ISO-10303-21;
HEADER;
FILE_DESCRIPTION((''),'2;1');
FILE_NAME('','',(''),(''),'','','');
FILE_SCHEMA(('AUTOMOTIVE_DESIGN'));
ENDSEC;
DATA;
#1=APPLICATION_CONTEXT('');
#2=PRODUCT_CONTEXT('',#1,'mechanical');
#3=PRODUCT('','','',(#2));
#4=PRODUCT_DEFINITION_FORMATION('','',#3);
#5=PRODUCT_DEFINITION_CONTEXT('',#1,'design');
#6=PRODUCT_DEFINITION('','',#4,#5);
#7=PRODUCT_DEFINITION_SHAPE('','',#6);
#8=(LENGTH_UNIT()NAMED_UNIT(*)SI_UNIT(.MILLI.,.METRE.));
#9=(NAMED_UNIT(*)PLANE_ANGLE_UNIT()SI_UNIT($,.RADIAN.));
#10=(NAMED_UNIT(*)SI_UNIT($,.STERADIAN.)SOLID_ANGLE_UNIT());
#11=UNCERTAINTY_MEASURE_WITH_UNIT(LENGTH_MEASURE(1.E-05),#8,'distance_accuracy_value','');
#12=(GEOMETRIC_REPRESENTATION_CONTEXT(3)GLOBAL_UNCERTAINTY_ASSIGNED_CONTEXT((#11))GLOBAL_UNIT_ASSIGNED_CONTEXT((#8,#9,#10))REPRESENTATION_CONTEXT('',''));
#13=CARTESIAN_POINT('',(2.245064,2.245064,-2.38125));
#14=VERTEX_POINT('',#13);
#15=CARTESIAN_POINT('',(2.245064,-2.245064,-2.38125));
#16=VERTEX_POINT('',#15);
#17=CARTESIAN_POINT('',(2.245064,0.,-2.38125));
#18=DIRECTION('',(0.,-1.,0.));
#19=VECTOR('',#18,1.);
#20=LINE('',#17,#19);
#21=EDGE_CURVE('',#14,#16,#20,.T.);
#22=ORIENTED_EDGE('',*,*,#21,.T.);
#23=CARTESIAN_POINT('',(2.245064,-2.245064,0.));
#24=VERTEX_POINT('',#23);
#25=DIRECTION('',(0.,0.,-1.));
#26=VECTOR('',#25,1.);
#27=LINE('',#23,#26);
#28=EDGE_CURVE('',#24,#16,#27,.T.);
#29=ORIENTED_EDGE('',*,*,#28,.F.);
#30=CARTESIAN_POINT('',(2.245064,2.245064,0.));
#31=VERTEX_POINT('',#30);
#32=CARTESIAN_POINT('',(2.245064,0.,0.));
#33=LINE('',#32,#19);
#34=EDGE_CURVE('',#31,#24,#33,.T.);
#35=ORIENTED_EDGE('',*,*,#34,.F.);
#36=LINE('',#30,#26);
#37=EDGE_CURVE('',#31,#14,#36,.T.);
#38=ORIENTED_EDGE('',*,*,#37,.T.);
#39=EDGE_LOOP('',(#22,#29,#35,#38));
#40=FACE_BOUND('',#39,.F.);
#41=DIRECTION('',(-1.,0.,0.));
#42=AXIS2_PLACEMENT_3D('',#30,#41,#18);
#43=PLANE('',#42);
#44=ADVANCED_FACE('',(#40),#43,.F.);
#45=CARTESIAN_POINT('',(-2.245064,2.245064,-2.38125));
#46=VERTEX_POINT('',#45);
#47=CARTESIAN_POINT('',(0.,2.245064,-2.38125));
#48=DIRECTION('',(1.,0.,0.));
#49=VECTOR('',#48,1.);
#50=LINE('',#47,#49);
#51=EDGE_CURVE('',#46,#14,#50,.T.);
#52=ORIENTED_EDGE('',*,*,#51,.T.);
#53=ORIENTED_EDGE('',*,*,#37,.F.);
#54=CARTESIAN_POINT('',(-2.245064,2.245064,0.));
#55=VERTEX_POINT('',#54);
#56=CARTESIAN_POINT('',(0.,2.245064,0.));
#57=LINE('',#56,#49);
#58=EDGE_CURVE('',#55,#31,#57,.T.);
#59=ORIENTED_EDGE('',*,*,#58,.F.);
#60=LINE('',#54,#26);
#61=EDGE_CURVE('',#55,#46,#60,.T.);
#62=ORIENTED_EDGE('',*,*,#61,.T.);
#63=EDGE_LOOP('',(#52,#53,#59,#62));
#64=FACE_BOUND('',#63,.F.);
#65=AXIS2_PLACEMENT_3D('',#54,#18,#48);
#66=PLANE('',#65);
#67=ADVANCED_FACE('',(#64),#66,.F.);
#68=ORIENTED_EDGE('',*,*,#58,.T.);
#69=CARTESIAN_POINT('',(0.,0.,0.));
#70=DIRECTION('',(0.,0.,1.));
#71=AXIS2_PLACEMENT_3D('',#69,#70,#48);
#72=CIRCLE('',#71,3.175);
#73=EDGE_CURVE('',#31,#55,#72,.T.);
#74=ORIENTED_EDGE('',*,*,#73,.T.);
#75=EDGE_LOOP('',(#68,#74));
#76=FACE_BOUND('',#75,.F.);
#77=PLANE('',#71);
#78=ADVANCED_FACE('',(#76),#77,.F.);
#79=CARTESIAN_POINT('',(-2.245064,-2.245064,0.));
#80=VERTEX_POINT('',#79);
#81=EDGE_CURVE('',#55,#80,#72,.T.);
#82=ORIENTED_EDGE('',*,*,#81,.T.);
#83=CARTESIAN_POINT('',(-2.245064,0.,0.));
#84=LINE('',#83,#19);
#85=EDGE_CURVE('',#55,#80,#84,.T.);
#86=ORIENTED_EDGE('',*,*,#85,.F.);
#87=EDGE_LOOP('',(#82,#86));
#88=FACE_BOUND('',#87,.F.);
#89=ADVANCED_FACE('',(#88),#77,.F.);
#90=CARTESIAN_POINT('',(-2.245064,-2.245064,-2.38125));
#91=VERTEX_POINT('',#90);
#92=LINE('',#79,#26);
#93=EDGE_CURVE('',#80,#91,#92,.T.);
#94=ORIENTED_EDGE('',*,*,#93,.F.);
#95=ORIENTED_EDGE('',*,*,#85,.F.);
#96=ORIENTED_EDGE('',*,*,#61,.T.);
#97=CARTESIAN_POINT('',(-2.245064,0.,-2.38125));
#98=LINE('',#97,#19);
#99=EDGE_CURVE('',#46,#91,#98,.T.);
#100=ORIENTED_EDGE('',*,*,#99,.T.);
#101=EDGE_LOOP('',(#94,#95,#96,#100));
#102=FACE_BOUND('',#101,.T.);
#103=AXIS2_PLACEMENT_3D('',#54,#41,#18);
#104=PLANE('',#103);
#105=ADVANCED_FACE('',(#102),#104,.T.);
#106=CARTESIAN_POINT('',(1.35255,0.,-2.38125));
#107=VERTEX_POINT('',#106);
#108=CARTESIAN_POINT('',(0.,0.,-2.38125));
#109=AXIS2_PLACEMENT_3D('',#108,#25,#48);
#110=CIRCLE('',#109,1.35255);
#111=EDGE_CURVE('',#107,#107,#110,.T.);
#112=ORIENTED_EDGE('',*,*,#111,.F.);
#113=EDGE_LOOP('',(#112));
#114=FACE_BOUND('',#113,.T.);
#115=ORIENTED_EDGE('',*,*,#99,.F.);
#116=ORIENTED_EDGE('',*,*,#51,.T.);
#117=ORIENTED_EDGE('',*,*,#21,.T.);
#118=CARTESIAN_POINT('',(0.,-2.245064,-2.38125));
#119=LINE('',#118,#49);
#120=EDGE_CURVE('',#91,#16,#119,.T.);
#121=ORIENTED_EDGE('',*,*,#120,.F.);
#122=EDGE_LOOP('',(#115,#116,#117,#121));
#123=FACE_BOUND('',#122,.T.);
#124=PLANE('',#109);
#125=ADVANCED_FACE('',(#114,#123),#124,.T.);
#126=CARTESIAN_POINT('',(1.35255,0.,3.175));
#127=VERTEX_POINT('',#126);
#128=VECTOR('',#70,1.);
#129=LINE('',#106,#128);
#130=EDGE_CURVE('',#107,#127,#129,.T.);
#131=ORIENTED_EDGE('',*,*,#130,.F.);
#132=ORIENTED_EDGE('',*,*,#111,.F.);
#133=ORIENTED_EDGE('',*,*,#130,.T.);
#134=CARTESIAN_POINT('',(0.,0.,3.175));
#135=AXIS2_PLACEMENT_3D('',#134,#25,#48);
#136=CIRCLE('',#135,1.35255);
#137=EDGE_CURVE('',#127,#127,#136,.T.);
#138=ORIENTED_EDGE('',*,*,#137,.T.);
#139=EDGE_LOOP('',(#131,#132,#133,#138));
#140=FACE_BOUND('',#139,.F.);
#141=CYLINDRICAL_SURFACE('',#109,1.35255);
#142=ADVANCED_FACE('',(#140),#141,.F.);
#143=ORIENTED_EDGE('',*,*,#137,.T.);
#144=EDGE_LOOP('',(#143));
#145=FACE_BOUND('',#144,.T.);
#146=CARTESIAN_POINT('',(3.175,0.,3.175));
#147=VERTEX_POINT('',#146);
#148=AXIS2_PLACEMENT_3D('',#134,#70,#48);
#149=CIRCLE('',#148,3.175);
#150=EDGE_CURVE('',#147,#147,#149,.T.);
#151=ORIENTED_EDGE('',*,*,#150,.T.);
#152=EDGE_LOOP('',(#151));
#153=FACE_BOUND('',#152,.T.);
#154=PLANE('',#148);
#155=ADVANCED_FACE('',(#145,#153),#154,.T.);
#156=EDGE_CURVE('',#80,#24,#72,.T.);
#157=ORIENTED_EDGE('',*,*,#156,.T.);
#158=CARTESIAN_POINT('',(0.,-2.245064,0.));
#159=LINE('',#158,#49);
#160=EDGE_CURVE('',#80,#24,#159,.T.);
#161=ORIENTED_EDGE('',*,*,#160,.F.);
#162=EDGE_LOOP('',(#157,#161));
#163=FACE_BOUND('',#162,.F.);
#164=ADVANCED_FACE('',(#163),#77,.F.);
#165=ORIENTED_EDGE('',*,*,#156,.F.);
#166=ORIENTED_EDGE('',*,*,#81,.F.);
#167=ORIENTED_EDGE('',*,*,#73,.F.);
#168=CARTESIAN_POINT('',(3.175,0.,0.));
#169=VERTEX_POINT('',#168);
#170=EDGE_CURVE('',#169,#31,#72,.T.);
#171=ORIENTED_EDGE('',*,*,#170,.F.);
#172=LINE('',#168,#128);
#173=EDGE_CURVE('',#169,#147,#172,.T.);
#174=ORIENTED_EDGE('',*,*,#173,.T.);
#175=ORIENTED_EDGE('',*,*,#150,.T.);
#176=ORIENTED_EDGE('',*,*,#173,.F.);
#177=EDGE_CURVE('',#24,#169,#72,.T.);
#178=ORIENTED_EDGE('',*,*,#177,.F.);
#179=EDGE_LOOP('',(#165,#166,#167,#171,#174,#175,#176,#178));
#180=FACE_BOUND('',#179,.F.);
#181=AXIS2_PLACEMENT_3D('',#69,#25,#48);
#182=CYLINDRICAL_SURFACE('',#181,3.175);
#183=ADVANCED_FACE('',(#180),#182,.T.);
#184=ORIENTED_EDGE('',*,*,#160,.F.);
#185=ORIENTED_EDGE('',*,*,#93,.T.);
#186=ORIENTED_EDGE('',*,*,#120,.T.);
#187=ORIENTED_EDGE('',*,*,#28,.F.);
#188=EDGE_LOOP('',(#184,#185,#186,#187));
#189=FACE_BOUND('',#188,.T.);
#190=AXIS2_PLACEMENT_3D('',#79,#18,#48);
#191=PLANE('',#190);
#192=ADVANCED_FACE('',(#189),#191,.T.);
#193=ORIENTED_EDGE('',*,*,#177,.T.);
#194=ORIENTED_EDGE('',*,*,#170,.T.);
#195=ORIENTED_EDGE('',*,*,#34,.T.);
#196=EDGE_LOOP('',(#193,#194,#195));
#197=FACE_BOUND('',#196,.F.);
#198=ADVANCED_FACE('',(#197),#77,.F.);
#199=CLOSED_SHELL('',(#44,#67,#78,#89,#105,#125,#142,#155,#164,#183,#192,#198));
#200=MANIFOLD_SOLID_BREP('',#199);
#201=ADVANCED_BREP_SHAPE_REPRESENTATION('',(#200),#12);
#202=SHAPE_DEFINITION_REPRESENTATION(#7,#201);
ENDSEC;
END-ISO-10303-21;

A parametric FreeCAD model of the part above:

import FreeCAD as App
import Part
import Sketcher
Q = App.Units.Quantity

doc = App.newDocument("Part")
params = doc.addObject("Spreadsheet::Sheet", "Params")
for row, (alias, value) in enumerate([
    ("sketch1_diameter", "0.25 in"),
    ("pad1_length", "0.125 in"),
    ("pad2_length", "0.09375 in"),
    ("pocket1_length", "0.25 in"),
], start=1):
    params.set(f"A{row}", alias)
    params.set(f"B{row}", "=" + value)
    params.setAlias(f"B{row}", alias)

body = doc.addObject("PartDesign::Body", "Body")

sketch1 = body.newObject("Sketcher::SketchObject", "Sketch")
sketch1.AttachmentSupport = (doc.getObject("XY_Plane"), [""])
sketch1.MapMode = "FlatFace"
sketch1.addGeometry(Part.Circle(App.Vector(0, 0, 0), App.Vector(0, 0, 1), 3.175), False)
sketch1.addConstraint([
    Sketcher.Constraint("Coincident", 0, 3, -1, 1),
    Sketcher.Constraint("Diameter", 0, Q("0.25 in")),
])
sketch1.setExpression("Constraints[1]", "Params.sketch1_diameter")
pad1 = body.newObject("PartDesign::Pad", "Pad")
pad1.Profile = sketch1
pad1.setExpression("Length", "Params.pad1_length")

sketch2 = body.newObject("Sketcher::SketchObject", "Sketch001")
sketch2.AttachmentSupport = (doc.getObject("XY_Plane"), [""])
sketch2.MapMode = "FlatFace"
sketch2.addGeometry([
    Part.LineSegment(App.Vector(-2.245064, -2.245064, 0), App.Vector(-2.245064, 2.245064, 0)),
    Part.LineSegment(App.Vector(-2.245064, 2.245064, 0), App.Vector(2.245064, 2.245064, 0)),
    Part.LineSegment(App.Vector(2.245064, 2.245064, 0), App.Vector(2.245064, -2.245064, 0)),
    Part.LineSegment(App.Vector(2.245064, -2.245064, 0), App.Vector(-2.245064, -2.245064, 0)),
], False)
sketch2.addConstraint([
    Sketcher.Constraint("Coincident", 0, 2, 1, 1),
    Sketcher.Constraint("Coincident", 1, 2, 2, 1),
    Sketcher.Constraint("Coincident", 2, 2, 3, 1),
    Sketcher.Constraint("Coincident", 3, 2, 0, 1),
    Sketcher.Constraint("Vertical", 0),
    Sketcher.Constraint("Horizontal", 1),
    Sketcher.Constraint("Vertical", 2),
    Sketcher.Constraint("Horizontal", 3),
    Sketcher.Constraint("Symmetric", 0, 2, 2, 2, -1, 1),
    Sketcher.Constraint("Equal", 3, 0),
    Sketcher.Constraint("DistanceX", 1, 1, 1, 2, Q("4.490128 mm")),
])
pad2 = body.newObject("PartDesign::Pad", "Pad001")
pad2.Profile = sketch2
pad2.setExpression("Length", "Params.pad2_length")
pad2.Reversed = True

sketch3 = body.newObject("Sketcher::SketchObject", "Sketch002")
sketch3.AttachmentSupport = (doc.getObject("XY_Plane"), [""])
sketch3.MapMode = "FlatFace"
sketch3.AttachmentOffset = App.Placement(App.Vector(0, 0, -0.09375 * 25.4), App.Rotation())
sketch3.addGeometry(Part.Circle(App.Vector(0, 0, 0), App.Vector(0, 0, 1), 1.35255), False)
sketch3.addConstraint([
    Sketcher.Constraint("Coincident", 0, 3, -1, 1),
    Sketcher.Constraint("Diameter", 0, Q("0.1065 in")),
])
pocket1 = body.newObject("PartDesign::Pocket", "Pocket")
pocket1.Profile = sketch3
pocket1.setExpression("Length", "Params.pocket1_length")
pocket1.Reversed = True

doc.recompute()
